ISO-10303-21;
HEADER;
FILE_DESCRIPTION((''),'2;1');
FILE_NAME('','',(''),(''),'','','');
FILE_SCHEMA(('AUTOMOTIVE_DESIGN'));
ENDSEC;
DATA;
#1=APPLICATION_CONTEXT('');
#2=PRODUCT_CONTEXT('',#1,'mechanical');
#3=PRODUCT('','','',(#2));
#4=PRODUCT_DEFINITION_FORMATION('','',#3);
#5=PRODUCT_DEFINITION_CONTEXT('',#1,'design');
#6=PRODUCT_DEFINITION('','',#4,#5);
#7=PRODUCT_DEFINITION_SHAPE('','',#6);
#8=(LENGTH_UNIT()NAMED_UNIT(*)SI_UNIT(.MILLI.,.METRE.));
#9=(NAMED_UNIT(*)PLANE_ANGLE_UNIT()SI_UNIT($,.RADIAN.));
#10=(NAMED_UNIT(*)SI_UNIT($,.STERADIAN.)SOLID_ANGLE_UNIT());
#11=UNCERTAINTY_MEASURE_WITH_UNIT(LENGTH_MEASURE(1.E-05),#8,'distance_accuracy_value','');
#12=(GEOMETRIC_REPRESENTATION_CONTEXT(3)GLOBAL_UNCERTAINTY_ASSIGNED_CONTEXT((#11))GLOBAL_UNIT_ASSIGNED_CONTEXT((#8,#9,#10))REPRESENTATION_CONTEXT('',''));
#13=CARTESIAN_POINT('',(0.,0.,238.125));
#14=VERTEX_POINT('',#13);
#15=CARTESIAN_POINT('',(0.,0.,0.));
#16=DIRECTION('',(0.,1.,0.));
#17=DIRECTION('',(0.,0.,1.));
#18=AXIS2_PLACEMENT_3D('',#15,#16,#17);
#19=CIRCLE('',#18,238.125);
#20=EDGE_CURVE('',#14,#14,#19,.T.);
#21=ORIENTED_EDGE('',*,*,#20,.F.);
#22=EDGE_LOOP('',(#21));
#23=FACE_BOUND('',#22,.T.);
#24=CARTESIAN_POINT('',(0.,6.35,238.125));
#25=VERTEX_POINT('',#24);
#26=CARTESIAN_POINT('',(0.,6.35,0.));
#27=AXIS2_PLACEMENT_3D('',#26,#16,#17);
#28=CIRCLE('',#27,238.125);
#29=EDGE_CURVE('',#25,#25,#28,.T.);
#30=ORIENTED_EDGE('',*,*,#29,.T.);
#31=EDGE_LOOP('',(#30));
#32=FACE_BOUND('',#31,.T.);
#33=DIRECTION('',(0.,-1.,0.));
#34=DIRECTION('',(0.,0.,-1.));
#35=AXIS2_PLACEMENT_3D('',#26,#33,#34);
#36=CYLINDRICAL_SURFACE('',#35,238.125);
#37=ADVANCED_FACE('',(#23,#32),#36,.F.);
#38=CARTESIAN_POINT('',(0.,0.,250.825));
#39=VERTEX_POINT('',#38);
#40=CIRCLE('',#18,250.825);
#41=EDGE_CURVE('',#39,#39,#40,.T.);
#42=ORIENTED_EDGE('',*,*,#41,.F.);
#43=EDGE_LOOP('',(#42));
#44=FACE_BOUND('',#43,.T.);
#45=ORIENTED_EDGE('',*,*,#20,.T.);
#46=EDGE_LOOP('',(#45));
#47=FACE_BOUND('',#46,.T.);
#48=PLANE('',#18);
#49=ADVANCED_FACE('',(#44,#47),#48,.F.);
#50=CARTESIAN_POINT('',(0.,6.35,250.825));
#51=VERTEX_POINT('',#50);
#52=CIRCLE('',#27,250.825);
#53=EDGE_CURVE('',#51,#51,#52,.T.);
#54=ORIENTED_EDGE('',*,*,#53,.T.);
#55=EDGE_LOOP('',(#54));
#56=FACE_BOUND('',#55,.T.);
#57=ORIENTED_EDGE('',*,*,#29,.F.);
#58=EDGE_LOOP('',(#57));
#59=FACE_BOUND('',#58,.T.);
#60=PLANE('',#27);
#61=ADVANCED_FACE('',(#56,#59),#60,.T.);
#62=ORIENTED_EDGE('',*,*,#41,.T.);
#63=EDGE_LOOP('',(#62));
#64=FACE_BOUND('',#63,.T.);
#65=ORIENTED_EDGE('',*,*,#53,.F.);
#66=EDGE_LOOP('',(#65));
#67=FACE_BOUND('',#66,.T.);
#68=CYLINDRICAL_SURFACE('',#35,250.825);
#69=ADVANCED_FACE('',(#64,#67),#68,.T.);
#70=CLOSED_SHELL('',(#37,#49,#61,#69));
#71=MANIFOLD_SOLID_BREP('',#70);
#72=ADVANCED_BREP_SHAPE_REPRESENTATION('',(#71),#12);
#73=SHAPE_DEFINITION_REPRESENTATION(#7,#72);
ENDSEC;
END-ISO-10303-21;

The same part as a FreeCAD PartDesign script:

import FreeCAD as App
import Part
import Sketcher

V = App.Vector
Q = App.Units.Quantity

doc = App.newDocument("Part")
params = doc.addObject("Spreadsheet::Sheet", "Params")
for row, (alias, value) in enumerate([
    ("sketch1_diameter", "19.75 in"),
    ("sketch1_diameter2", "18.75 in"),
    ("pad1_length", "0.25 in"),
], start=1):
    params.set(f"A{row}", alias)
    params.set(f"B{row}", "=" + value)
    params.setAlias(f"B{row}", alias)

body = doc.addObject("PartDesign::Body", "Body")

# Sketch on XZ plane
sketch1 = doc.addObject("Sketcher::SketchObject", "Sketch")
body.addObject(sketch1)
sketch1.AttachmentSupport = (doc.XZ_Plane, [""])
sketch1.MapMode = "FlatFace"
sketch1.addGeometry(Part.Circle(V(0, 0, 0), V(0, 0, 1), 251), False)
sketch1.addGeometry(Part.Circle(V(0, 0, 0), V(0, 0, 1), 238), False)
sketch1.addConstraint(Sketcher.Constraint("Coincident", 0, 3, -1, 1))
sketch1.addConstraint(Sketcher.Constraint("Coincident", 1, 3, -1, 1))
sketch1.addConstraint(Sketcher.Constraint("Diameter", 0, Q("19.75 in")))
sketch1.addConstraint(Sketcher.Constraint("Diameter", 1, Q("18.75 in")))
sketch1.setExpression("Constraints[2]", "Params.sketch1_diameter")
sketch1.setExpression("Constraints[3]", "Params.sketch1_diameter2")
pad1 = doc.addObject("PartDesign::Pad", "Pad")
body.addObject(pad1)
pad1.Profile = sketch1
pad1.setExpression("Length", "Params.pad1_length")
pad1.Reversed = True

doc.recompute()
